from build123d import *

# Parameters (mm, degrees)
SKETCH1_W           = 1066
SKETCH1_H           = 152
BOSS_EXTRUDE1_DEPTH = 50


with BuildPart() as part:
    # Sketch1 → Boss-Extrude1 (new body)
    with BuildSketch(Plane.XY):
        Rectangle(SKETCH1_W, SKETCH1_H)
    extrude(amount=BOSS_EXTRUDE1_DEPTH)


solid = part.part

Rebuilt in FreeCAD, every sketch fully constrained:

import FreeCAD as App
import Part
import Sketcher

doc = App.newDocument("Part")
body = doc.addObject("PartDesign::Body", "Body")

sketch1 = body.newObject("Sketcher::SketchObject", "Sketch")
sketch1.AttachmentSupport = (doc.getObject("XY_Plane"), [""])
sketch1.MapMode = "FlatFace"
sketch1.addGeometry([
    Part.LineSegment(App.Vector(-533, 76, 0), App.Vector(-533, -76, 0)),
    Part.LineSegment(App.Vector(-533, -76, 0), App.Vector(533, -76, 0)),
    Part.LineSegment(App.Vector(533, -76, 0), App.Vector(533, 76, 0)),
    Part.LineSegment(App.Vector(533, 76, 0), App.Vector(-533, 76, 0)),
], False)
sketch1.addConstraint([
    Sketcher.Constraint("Coincident", 0, 2, 1, 1),
    Sketcher.Constraint("Coincident", 1, 2, 2, 1),
    Sketcher.Constraint("Coincident", 2, 2, 3, 1),
    Sketcher.Constraint("Coincident", 3, 2, 0, 1),
    Sketcher.Constraint("Vertical", 0),
    Sketcher.Constraint("Horizontal", 1),
    Sketcher.Constraint("Vertical", 2),
    Sketcher.Constraint("Horizontal", 3),
    Sketcher.Constraint("Symmetric", 0, 2, 2, 2, -1, 1),
    Sketcher.Constraint("DistanceX", 1, 1, 1, 2, 1066.0),
    Sketcher.Constraint("DistanceY", 0, 2, 0, 1, 152.0),
])
pad1 = body.newObject("PartDesign::Pad", "Pad")
pad1.Profile = sketch1
pad1.Length = 50

doc.recompute()
